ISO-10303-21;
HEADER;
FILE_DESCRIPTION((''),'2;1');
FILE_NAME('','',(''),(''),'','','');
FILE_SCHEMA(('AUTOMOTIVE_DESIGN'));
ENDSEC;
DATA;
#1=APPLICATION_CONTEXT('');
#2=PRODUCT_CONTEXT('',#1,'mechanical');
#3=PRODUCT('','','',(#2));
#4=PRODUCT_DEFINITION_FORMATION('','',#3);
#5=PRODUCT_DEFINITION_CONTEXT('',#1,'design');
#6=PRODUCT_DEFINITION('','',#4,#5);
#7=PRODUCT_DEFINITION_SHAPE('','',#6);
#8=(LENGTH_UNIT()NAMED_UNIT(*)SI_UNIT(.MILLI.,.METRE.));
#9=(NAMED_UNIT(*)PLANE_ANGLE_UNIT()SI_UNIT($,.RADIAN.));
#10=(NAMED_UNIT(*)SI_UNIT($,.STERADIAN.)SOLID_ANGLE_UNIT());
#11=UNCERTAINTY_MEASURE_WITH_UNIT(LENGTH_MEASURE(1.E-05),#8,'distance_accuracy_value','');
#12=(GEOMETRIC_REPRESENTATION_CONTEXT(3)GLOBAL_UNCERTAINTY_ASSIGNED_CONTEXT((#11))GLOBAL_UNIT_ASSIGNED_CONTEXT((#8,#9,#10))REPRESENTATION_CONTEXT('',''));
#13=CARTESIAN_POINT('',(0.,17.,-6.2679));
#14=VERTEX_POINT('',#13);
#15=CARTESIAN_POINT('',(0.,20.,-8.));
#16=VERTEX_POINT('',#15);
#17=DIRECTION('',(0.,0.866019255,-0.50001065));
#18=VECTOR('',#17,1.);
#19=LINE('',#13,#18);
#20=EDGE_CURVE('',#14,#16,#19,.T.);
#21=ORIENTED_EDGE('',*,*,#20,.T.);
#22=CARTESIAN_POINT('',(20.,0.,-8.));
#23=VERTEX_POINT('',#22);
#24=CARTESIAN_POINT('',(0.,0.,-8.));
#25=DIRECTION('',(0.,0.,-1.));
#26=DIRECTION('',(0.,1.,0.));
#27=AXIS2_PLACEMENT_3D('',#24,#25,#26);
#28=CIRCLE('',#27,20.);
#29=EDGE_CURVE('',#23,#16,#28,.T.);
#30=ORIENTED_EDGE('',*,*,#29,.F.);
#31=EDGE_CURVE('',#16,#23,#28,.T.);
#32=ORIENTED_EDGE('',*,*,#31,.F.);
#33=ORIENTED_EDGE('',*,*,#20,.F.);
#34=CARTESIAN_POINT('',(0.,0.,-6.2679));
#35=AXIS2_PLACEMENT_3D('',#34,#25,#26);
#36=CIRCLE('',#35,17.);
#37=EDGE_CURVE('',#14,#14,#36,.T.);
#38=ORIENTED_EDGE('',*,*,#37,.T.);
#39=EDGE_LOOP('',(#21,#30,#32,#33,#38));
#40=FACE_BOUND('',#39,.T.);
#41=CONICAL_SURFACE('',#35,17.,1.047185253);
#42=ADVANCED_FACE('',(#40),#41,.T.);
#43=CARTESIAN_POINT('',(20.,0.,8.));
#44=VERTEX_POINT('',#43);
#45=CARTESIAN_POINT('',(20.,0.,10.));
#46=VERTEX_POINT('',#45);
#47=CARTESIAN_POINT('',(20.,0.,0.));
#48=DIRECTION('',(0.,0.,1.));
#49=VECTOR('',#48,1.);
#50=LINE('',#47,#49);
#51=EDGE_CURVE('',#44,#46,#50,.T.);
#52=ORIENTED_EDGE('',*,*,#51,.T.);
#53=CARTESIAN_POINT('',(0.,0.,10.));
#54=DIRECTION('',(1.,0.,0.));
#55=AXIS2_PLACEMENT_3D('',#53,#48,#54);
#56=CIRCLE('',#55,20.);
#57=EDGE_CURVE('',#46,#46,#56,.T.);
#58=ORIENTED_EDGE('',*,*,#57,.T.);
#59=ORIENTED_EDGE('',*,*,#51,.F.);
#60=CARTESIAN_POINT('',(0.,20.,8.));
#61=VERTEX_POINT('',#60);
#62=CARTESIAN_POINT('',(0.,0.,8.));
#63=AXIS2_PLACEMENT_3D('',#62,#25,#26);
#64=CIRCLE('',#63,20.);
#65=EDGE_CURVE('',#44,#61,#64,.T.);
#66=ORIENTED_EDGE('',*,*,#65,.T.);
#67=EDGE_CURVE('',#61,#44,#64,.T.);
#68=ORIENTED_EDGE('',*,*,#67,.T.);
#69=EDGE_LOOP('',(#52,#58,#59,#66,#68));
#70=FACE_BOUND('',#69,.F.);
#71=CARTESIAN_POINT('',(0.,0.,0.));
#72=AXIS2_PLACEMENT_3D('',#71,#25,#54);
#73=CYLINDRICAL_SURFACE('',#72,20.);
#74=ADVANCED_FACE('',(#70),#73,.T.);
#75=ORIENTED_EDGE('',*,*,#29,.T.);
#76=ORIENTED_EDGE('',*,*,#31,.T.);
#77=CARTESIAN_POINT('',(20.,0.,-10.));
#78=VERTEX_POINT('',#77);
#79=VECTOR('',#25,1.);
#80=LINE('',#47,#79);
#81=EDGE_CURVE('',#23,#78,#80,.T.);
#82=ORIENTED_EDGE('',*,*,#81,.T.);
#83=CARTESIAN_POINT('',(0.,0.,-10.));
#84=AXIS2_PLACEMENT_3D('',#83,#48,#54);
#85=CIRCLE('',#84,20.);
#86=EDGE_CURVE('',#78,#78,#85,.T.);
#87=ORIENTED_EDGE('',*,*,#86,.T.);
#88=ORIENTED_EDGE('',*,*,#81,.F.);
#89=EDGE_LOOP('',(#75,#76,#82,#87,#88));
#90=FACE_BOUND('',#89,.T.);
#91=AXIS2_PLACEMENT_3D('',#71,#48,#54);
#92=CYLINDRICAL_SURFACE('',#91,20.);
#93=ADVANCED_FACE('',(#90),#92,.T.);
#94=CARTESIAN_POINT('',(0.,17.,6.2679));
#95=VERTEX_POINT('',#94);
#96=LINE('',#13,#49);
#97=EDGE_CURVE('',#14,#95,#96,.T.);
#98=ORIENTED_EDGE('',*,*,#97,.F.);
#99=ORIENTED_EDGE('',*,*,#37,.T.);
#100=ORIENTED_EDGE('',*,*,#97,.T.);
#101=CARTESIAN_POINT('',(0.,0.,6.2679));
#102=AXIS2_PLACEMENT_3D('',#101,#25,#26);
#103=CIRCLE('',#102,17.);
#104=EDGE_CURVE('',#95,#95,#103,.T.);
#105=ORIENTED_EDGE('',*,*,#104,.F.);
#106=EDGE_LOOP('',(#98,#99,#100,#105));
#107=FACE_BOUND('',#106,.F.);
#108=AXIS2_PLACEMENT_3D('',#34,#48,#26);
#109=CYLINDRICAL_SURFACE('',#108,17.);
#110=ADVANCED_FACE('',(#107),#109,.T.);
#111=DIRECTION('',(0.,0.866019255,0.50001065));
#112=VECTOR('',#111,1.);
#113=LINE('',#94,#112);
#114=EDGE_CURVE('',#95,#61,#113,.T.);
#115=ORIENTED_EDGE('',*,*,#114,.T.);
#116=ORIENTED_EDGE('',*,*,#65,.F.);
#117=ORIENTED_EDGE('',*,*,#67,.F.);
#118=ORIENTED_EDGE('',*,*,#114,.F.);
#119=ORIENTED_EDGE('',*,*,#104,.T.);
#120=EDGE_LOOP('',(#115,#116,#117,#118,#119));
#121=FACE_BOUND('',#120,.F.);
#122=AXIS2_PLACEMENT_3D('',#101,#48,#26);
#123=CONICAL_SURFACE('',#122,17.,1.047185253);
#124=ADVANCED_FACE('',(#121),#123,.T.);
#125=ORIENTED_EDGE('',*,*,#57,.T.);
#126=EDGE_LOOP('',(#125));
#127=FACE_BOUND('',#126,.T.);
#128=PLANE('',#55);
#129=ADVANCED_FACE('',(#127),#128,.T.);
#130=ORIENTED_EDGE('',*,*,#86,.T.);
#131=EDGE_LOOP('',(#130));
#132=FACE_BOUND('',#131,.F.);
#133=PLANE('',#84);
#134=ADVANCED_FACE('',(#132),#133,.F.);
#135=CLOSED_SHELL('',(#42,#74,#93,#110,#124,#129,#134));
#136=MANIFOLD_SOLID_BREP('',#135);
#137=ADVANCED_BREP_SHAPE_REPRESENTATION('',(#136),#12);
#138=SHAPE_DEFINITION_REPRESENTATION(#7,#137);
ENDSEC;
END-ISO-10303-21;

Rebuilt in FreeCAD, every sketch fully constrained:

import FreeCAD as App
import Part
import Sketcher
Q = App.Units.Quantity

doc = App.newDocument("Part")
body = doc.addObject("PartDesign::Body", "Body")

sketch1 = body.newObject("Sketcher::SketchObject", "Sketch")
sketch1.AttachmentSupport = (doc.getObject("XY_Plane"), [""])
sketch1.MapMode = "FlatFace"
sketch1.addGeometry(Part.Circle(App.Vector(0, 0, 0), App.Vector(0, 0, 1), 20), False)
sketch1.addConstraint(Sketcher.Constraint("Coincident", 0, 3, -1, 1))
sketch1.addConstraint(Sketcher.Constraint("Diameter", 0, Q("40 mm")))
pad1 = body.newObject("PartDesign::Pad", "Pad")
pad1.Profile = sketch1
pad1.Length = 20
pad1.Midplane = True

sketch2 = body.newObject("Sketcher::SketchObject", "Sketch001")
sketch2.AttachmentSupport = (doc.getObject("YZ_Plane"), [""])
sketch2.MapMode = "FlatFace"
sketch2.addGeometry(Part.LineSegment(App.Vector(17, -6.3, 0), App.Vector(20, -8, 0)), False)
sketch2.addGeometry(Part.LineSegment(App.Vector(20, -8, 0), App.Vector(20, 8, 0)), False)
sketch2.addGeometry(Part.LineSegment(App.Vector(20, 8, 0), App.Vector(17, 6.3, 0)), False)
sketch2.addGeometry(Part.LineSegment(App.Vector(17, 6.3, 0), App.Vector(17, -6.3, 0)), False)
sketch2.addConstraint(Sketcher.Constraint("Coincident", 0, 2, 1, 1))
sketch2.addConstraint(Sketcher.Constraint("Coincident", 1, 2, 2, 1))
sketch2.addConstraint(Sketcher.Constraint("Coincident", 2, 2, 3, 1))
sketch2.addConstraint(Sketcher.Constraint("Coincident", 3, 2, 0, 1))
sketch2.addConstraint(Sketcher.Constraint("Vertical", 1))
sketch2.addConstraint(Sketcher.Constraint("Vertical", 3))
sketch2.addConstraint(Sketcher.Constraint("Equal", 0, 2))
sketch2.addConstraint(Sketcher.Constraint("DistanceX", 2, 2, 1, 2, Q("3 mm")))
sketch2.addConstraint(Sketcher.Constraint("DistanceY", 1, 1, 1, 2, Q("16 mm")))
sketch2.addConstraint(Sketcher.Constraint("Angle", 0, Q("-30.0007 deg")))
sketch2.addConstraint(Sketcher.Constraint("DistanceX", -1, 1, 0, 2, Q("20 mm")))
sketch2.addConstraint(Sketcher.Constraint("DistanceY", 0, 2, -1, 1, Q("8 mm")))
groove = body.newObject("PartDesign::Groove", "Groove")
groove.Profile = sketch2
groove.ReferenceAxis = (sketch2, ["V_Axis"])
groove.Angle = 360

doc.recompute()
